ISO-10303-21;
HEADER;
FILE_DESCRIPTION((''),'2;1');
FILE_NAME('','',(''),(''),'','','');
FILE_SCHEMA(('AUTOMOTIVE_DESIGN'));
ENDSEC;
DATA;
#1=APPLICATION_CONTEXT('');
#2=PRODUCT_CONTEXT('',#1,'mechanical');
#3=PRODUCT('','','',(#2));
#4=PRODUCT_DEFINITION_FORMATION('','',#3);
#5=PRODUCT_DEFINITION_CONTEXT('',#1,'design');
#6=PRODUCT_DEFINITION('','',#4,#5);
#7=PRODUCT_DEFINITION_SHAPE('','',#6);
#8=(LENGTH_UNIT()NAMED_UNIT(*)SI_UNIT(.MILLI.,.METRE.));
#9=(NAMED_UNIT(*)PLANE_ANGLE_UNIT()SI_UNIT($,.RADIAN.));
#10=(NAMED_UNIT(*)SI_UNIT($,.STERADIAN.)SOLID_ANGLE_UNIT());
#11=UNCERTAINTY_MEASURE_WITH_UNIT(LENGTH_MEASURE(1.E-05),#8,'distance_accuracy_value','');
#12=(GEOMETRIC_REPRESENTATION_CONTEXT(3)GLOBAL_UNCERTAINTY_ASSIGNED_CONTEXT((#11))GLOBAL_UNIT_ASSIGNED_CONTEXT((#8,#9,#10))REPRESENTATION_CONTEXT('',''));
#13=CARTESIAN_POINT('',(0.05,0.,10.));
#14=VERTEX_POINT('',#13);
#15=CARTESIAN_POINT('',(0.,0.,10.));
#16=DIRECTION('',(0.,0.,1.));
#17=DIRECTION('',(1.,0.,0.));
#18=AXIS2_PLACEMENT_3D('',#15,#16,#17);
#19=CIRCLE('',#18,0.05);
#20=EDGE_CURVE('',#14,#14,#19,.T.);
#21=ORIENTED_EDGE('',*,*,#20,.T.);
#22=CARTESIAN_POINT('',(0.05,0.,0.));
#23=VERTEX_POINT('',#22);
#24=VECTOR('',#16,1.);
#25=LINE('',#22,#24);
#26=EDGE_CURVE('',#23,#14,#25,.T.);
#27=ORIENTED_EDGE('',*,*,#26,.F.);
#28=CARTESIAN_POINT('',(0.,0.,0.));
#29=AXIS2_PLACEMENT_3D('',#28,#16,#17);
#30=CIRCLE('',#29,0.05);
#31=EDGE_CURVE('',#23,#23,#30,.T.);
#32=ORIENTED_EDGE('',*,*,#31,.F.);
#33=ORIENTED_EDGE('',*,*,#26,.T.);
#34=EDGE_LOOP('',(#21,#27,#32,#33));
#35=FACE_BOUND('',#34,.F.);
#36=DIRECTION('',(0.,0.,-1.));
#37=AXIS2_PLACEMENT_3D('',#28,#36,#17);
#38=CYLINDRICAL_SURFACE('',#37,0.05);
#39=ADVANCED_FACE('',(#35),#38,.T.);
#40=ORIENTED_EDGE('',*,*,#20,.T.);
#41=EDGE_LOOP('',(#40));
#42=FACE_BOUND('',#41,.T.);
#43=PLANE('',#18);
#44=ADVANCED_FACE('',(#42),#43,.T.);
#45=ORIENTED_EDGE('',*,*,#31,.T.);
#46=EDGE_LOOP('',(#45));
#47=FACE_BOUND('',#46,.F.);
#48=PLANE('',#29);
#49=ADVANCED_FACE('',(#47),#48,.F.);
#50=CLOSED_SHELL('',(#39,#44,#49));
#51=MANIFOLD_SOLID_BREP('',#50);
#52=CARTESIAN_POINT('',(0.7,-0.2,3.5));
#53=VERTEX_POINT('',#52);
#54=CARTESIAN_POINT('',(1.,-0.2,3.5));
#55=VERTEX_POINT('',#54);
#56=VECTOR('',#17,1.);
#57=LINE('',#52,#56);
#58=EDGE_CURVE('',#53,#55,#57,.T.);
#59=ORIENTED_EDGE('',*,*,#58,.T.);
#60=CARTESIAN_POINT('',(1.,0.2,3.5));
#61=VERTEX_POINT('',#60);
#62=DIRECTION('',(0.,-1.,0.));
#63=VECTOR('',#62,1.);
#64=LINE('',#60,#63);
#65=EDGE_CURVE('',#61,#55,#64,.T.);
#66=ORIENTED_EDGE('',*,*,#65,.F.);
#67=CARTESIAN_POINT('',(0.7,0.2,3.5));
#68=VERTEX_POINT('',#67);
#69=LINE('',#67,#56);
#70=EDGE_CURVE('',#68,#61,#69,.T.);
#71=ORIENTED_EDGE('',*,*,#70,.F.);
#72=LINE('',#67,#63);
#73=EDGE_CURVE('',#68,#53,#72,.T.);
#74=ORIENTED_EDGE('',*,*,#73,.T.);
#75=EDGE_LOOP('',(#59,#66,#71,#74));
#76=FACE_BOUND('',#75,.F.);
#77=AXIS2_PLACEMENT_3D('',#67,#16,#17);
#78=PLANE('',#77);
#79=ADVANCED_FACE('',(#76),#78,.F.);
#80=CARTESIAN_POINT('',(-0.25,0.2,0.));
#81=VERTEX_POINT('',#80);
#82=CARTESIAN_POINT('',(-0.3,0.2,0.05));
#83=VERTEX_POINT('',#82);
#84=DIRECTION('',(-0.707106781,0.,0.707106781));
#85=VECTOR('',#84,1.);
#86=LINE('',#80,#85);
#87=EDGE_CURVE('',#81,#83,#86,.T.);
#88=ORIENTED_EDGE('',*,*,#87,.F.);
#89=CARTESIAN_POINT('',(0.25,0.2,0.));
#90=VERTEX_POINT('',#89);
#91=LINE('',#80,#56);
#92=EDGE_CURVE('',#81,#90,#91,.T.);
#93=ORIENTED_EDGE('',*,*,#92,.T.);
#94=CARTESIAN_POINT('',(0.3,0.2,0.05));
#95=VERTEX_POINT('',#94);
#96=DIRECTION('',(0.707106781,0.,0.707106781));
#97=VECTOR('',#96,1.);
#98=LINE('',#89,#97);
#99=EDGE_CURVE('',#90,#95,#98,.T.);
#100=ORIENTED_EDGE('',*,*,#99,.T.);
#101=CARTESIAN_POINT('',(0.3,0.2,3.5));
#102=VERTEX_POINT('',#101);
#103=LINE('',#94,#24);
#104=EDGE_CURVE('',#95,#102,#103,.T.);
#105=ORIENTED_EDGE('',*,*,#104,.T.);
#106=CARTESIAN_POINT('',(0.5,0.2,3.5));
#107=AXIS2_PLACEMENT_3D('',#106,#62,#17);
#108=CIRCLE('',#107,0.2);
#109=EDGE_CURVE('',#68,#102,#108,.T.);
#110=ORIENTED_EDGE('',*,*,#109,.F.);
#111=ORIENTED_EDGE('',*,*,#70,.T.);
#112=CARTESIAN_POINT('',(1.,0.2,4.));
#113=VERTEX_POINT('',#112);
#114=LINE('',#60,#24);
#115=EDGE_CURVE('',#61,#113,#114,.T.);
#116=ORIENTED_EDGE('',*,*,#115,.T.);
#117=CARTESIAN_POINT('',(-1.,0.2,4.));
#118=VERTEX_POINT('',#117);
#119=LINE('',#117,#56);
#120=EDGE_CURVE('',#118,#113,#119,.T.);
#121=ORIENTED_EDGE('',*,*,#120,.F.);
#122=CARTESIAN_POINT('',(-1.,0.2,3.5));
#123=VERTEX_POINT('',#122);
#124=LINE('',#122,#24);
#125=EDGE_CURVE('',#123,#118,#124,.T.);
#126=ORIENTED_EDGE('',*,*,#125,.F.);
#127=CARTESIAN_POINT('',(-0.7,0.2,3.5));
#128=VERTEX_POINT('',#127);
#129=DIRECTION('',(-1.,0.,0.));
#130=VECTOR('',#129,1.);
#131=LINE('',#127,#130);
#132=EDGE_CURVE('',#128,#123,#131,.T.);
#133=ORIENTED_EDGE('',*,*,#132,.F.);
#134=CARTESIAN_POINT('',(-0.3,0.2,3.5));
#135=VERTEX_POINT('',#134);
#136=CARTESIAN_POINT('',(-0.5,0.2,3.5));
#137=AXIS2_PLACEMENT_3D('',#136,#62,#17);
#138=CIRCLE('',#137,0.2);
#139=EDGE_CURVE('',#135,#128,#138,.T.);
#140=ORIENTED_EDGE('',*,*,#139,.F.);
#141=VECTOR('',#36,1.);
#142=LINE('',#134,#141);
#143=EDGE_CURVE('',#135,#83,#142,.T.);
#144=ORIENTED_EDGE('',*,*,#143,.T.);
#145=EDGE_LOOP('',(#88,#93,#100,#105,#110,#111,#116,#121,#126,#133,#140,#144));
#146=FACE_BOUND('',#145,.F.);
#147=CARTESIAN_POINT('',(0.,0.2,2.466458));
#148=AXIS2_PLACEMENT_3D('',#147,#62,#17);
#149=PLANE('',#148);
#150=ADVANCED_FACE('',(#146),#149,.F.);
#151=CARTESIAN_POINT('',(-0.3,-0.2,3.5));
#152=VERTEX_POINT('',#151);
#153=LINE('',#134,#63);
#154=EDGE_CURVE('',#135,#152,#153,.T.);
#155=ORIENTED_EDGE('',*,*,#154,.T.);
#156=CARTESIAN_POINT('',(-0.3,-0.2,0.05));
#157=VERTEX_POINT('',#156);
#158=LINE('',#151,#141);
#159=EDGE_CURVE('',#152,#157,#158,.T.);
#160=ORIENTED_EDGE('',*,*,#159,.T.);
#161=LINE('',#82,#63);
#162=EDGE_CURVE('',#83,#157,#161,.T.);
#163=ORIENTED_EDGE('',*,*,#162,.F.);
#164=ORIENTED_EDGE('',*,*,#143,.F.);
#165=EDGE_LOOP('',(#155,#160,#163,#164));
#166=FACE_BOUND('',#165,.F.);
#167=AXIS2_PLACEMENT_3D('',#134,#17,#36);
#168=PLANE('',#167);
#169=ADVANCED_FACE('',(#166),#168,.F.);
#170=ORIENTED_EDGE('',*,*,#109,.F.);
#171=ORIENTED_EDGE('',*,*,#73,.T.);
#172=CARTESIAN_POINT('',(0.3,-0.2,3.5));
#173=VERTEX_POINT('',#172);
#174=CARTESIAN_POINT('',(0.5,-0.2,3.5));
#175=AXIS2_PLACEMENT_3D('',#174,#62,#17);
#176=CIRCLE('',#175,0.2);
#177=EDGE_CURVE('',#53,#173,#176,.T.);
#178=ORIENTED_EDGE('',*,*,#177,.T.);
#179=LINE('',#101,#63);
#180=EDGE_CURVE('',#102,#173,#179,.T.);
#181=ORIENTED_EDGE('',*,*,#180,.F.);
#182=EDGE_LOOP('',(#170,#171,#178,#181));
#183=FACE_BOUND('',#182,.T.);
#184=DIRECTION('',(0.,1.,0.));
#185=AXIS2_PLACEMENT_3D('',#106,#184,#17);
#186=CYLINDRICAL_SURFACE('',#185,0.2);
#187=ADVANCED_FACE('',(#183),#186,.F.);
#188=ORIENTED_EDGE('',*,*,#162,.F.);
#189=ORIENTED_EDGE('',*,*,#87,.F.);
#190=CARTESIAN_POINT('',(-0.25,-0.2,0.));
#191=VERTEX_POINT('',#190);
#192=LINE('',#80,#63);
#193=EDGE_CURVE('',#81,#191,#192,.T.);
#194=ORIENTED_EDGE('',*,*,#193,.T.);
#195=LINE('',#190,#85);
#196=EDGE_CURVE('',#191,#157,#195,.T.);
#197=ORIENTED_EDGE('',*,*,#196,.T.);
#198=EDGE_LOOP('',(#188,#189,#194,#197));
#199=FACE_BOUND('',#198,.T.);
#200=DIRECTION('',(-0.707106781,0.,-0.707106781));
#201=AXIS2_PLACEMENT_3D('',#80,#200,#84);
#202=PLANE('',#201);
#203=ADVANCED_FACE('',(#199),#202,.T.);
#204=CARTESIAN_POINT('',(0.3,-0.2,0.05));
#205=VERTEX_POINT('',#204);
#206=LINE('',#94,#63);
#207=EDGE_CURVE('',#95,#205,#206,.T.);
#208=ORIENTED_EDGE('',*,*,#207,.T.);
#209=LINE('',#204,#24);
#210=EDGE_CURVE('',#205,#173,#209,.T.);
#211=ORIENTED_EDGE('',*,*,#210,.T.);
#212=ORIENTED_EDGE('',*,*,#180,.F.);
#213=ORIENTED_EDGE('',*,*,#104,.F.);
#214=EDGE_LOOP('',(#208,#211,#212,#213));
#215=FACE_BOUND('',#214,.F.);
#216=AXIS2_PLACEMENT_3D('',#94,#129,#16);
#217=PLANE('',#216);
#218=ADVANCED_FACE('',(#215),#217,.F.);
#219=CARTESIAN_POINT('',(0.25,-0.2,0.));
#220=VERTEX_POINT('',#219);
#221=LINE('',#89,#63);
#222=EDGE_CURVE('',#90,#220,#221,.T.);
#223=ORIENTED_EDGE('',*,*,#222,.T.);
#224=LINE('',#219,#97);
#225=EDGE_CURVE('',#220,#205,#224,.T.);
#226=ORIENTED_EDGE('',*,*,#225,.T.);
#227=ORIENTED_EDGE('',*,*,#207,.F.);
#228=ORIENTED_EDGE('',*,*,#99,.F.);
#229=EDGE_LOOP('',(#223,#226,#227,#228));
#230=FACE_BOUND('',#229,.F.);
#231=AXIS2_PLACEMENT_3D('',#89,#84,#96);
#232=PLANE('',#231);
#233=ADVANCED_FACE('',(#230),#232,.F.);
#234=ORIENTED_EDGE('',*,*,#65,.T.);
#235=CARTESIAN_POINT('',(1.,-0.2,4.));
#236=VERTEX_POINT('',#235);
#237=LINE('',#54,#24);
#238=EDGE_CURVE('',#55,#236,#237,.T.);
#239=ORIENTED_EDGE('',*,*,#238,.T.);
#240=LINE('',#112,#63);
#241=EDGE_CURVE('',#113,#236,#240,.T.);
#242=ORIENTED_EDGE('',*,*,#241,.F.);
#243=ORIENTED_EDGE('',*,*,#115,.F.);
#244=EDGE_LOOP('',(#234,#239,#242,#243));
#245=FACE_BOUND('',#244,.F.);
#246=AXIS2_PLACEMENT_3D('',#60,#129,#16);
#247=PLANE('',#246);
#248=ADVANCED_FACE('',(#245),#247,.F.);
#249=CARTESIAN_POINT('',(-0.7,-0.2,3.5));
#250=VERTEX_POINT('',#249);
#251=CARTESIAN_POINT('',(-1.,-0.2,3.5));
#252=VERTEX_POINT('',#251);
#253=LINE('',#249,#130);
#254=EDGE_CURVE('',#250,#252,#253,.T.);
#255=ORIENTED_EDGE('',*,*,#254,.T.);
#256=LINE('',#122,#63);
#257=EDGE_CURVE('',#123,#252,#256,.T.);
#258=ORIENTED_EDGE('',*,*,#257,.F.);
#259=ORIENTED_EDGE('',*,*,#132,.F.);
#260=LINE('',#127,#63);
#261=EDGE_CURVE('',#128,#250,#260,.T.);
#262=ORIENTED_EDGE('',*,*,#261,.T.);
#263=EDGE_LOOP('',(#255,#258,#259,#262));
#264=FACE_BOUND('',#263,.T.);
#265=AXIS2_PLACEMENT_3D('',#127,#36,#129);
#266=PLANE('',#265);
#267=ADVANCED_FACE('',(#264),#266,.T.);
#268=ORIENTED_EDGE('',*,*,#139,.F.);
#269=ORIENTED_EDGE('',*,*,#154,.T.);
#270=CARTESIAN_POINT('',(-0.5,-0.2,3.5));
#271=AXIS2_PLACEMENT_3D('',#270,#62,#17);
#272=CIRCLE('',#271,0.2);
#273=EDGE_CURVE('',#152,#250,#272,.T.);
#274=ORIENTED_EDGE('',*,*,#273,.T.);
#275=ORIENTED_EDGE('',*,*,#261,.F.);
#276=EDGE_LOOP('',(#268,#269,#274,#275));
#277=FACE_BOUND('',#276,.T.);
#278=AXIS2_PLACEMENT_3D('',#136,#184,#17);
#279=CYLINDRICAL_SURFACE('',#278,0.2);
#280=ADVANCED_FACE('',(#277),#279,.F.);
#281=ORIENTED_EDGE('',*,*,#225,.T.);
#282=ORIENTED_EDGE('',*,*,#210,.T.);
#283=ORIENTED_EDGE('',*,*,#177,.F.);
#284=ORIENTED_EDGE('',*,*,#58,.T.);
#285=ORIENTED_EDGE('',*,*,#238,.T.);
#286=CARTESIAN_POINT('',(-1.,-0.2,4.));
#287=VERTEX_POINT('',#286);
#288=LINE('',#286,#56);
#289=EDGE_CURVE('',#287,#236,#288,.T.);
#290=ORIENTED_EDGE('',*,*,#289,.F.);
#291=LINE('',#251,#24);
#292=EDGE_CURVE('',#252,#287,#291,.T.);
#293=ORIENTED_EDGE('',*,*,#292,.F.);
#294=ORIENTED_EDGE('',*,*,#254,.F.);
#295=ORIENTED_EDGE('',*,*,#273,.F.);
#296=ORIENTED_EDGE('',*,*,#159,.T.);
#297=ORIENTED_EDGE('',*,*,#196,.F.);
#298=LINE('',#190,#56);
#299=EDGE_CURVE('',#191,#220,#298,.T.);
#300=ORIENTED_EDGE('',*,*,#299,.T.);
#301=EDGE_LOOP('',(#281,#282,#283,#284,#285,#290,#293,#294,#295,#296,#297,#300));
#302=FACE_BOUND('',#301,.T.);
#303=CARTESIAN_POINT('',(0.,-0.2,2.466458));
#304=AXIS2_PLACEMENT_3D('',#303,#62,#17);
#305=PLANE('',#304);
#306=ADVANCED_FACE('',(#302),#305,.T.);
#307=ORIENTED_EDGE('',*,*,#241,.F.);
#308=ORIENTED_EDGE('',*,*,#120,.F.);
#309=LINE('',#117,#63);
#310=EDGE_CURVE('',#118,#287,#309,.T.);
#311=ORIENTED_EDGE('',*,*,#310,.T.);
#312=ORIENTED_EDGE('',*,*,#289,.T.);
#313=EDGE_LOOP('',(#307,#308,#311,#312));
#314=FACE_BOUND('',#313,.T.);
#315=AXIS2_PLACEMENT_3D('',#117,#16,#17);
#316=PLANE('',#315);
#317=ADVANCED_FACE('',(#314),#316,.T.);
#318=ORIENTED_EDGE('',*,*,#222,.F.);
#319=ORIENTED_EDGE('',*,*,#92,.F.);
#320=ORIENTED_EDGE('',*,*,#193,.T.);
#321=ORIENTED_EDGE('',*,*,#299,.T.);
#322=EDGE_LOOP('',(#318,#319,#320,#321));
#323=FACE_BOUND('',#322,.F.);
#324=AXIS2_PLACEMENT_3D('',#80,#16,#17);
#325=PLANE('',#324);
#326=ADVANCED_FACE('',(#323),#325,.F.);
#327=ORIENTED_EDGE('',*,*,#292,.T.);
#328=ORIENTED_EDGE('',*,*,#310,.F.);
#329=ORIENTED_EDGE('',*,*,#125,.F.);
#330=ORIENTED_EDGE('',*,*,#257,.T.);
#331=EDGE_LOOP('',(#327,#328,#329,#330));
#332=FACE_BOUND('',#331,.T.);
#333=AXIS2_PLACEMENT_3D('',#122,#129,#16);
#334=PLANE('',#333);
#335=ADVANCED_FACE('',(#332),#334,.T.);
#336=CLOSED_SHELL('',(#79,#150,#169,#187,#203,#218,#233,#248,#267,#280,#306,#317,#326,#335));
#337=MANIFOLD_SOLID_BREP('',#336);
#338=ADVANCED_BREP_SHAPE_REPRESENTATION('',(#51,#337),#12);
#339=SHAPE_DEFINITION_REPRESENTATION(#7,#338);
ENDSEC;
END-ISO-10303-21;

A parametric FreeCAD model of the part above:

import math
import FreeCAD as App
import Part
import Sketcher

V = App.Vector
Q = App.Units.Quantity

doc = App.newDocument("Part")
params = doc.addObject("Spreadsheet::Sheet", "Params")
for row, (alias, value) in enumerate([
    ("sketch1_diameter", "0.1 mm"),
    ("pad1_length", "10 mm"),
    ("sketch2_radius", "0.2 mm"),
    ("sketch2_width", "2 mm"),
    ("sketch2_width2", "0.3 mm"),
    ("sketch2_width3", "0.5 mm"),
    ("pad2_length", "0.4 mm"),
], start=1):
    params.set(f"A{row}", alias)
    params.set(f"B{row}", "=" + value)
    params.setAlias(f"B{row}", alias)

body = doc.addObject("PartDesign::Body", "Body")

# Sketch on XY plane
sketch1 = body.newObject("Sketcher::SketchObject", "Sketch")
sketch1.AttachmentSupport = (doc.getObject("XY_Plane"), [""])
sketch1.MapMode = "FlatFace"
sketch1.addGeometry(Part.Circle(V(0, 0, 0), V(0, 0, 1), 0.05), False)
sketch1.addConstraint([
    Sketcher.Constraint("Coincident", 0, 3, -1, 1),
    Sketcher.Constraint("Diameter", 0, Q("0.1 mm")),
])
sketch1.setExpression("Constraints[1]", "Params.sketch1_diameter")
pad1 = body.newObject("PartDesign::Pad", "Pad")
pad1.Profile = sketch1
pad1.setExpression("Length", "Params.pad1_length")
body2 = doc.addObject("PartDesign::Body", "Body001")

# Sketch on XZ plane
sketch2 = body2.newObject("Sketcher::SketchObject", "Sketch001")
sketch2.AttachmentSupport = (doc.getObject("XZ_Plane001"), [""])
sketch2.MapMode = "FlatFace"
sketch2.AttachmentOffset = App.Placement(V(0, 0, -0.2), App.Rotation())
sketch2.addGeometry([
    Part.LineSegment(V(0.25, 0, 0), V(0.3, 0.05, 0)),  # 0
    Part.LineSegment(V(0.3, 0.05, 0), V(0.3, 3.5, 0)),  # 1
    Part.ArcOfCircle(Part.Circle(V(0.5, 3.5, 0), V(0, 0, 1), 0.2), math.radians(0), math.radians(180)),  # 2
    Part.LineSegment(V(0.7, 3.5, 0), V(1, 3.5, 0)),  # 3
    Part.LineSegment(V(1, 3.5, 0), V(1, 4, 0)),  # 4
    Part.LineSegment(V(1, 4, 0), V(-1, 4, 0)),  # 5
    Part.LineSegment(V(-1, 4, 0), V(-1, 3.5, 0)),  # 6
    Part.LineSegment(V(-1, 3.5, 0), V(-0.7, 3.5, 0)),  # 7
    Part.ArcOfCircle(Part.Circle(V(-0.5, 3.5, 0), V(0, 0, 1), 0.2), math.radians(0), math.radians(180)),  # 8
    Part.LineSegment(V(-0.3, 3.5, 0), V(-0.3, 0.05, 0)),  # 9
    Part.LineSegment(V(-0.3, 0.05, 0), V(-0.25, 0, 0)),  # 10
    Part.LineSegment(V(-0.25, 0, 0), V(0.25, 0, 0)),  # 11
], False)
sketch2.addConstraint([
    Sketcher.Constraint("Coincident", 0, 2, 1, 1),
    Sketcher.Constraint("Tangent", 1, 2, 2, 2),
    Sketcher.Constraint("Coincident", 2, 1, 3, 1),
    Sketcher.Constraint("Coincident", 3, 2, 4, 1),
    Sketcher.Constraint("Coincident", 4, 2, 5, 1),
    Sketcher.Constraint("Coincident", 5, 2, 6, 1),
    Sketcher.Constraint("Coincident", 6, 2, 7, 1),
    Sketcher.Constraint("Coincident", 7, 2, 8, 2),
    Sketcher.Constraint("Tangent", 8, 1, 9, 1),
    Sketcher.Constraint("Coincident", 9, 2, 10, 1),
    Sketcher.Constraint("Coincident", 10, 2, 11, 1),
    Sketcher.Constraint("Coincident", 11, 2, 0, 1),
    Sketcher.Constraint("Vertical", 1),
    Sketcher.Constraint("Horizontal", 3),
    Sketcher.Constraint("Vertical", 4),
    Sketcher.Constraint("Horizontal", 5),
    Sketcher.Constraint("Vertical", 6),
    Sketcher.Constraint("Horizontal", 7),
    Sketcher.Constraint("Vertical", 9),
    Sketcher.Constraint("Horizontal", 11),
    Sketcher.Constraint("Equal", 2, 8),
    Sketcher.Constraint("Symmetric", 10, 2, 11, 2, -1, 1),
    Sketcher.Constraint("Symmetric", 2, 3, 8, 3, -2),
    Sketcher.Constraint("Symmetric", 3, 2, 6, 2, -2),
    Sketcher.Constraint("Perpendicular", 0, 10),
    Sketcher.Constraint("Horizontal", 1, 2, 2, 1),
    Sketcher.Constraint("Horizontal", 0, 2, 9, 2),
    Sketcher.Constraint("Equal", 11, 4),
    Sketcher.Constraint("Radius", 2, Q("0.2 mm")),
    Sketcher.Constraint("DistanceX", 5, 2, 5, 1, Q("2 mm")),
    Sketcher.Constraint("DistanceX", 3, 1, 3, 2, Q("0.3 mm")),
    Sketcher.Constraint("DistanceX", 11, 1, 11, 2, Q("0.5 mm")),
    Sketcher.Constraint("DistanceY", -1, 1, 4, 2, Q("4 mm")),
])
sketch2.setExpression("Constraints[28]", "Params.sketch2_radius")
sketch2.setExpression("Constraints[29]", "Params.sketch2_width")
sketch2.setExpression("Constraints[30]", "Params.sketch2_width2")
sketch2.setExpression("Constraints[31]", "Params.sketch2_width3")
pad2 = body2.newObject("PartDesign::Pad", "Pad001")
pad2.Profile = sketch2
pad2.setExpression("Length", "Params.pad2_length")

doc.recompute()
